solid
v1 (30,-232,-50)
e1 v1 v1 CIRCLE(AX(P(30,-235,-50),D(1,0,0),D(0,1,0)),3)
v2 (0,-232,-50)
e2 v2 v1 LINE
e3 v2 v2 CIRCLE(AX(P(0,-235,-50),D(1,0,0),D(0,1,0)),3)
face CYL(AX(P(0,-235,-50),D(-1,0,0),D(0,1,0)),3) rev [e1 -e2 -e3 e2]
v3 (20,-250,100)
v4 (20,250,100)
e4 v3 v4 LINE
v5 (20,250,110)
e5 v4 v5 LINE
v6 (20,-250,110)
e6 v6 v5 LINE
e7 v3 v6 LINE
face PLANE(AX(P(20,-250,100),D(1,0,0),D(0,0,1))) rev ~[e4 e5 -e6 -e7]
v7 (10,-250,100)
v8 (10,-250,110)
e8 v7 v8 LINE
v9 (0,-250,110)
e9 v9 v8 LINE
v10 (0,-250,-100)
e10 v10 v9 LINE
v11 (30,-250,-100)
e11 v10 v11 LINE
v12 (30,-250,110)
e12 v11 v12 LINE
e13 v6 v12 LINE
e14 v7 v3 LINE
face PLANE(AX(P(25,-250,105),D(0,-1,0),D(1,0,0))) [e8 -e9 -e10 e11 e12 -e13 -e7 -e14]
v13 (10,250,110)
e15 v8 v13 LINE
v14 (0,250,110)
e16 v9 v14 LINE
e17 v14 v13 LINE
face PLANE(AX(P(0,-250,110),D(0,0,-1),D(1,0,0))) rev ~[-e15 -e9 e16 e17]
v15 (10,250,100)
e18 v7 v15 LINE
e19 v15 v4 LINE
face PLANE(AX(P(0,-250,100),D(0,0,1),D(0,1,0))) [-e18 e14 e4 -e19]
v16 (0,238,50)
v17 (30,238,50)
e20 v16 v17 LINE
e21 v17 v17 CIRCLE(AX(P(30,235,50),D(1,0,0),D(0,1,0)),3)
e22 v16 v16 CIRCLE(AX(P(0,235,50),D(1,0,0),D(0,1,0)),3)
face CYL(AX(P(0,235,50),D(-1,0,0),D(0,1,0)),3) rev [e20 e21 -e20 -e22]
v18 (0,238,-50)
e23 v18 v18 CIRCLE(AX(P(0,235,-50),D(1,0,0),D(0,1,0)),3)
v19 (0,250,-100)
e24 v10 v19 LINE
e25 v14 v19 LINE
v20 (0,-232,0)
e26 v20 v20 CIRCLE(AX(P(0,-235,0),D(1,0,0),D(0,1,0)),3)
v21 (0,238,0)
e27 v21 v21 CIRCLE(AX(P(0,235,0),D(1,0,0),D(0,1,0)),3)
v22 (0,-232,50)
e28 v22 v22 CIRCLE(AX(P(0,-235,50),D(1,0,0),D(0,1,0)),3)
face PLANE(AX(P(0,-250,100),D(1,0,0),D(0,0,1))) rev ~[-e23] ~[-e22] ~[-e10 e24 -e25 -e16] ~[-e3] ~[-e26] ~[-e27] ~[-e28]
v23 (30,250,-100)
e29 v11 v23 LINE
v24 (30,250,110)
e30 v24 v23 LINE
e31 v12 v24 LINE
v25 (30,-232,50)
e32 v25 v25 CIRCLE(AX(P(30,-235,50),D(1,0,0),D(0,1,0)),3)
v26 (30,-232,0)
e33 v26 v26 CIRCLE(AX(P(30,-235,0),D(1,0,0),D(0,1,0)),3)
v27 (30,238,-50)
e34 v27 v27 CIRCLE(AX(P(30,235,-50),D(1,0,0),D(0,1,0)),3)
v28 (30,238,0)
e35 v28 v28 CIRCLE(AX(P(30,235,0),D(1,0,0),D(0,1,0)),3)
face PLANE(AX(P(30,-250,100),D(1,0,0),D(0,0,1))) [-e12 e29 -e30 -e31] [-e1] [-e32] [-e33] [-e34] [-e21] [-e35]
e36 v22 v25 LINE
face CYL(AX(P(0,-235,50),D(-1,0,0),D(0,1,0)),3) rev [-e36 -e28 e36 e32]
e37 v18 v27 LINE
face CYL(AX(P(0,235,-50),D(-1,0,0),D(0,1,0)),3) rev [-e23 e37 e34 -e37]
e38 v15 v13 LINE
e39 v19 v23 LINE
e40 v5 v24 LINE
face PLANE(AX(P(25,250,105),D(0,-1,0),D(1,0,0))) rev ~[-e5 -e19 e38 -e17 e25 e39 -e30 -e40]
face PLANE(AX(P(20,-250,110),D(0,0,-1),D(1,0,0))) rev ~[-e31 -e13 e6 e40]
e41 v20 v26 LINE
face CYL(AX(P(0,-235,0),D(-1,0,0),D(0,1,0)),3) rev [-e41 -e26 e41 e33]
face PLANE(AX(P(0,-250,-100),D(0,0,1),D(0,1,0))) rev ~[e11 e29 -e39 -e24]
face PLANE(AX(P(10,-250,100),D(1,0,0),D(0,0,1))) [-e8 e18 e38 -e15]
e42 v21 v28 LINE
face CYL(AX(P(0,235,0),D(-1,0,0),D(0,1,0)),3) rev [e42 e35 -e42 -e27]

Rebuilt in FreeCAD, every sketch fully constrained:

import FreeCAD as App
import Part
import Sketcher
Q = App.Units.Quantity

doc = App.newDocument("Part")
body = doc.addObject("PartDesign::Body", "Body")

sketch1 = body.newObject("Sketcher::SketchObject", "Sketch")
sketch1.AttachmentSupport = (doc.getObject("YZ_Plane"), [""])
sketch1.MapMode = "FlatFace"
sketch1.addGeometry([
    Part.LineSegment(App.Vector(-250, 100, 0), App.Vector(-250, -100, 0)),
    Part.LineSegment(App.Vector(-250, -100, 0), App.Vector(250, -100, 0)),
    Part.LineSegment(App.Vector(250, -100, 0), App.Vector(250, 100, 0)),
    Part.LineSegment(App.Vector(250, 100, 0), App.Vector(-250, 100, 0)),
    Part.Circle(App.Vector(-235, -50, 0), App.Vector(0, 0, 1), 3),
    Part.Circle(App.Vector(235, -50, 0), App.Vector(0, 0, 1), 3),
    Part.Circle(App.Vector(-235, 0, 0), App.Vector(0, 0, 1), 3),
    Part.Circle(App.Vector(-235, 50, 0), App.Vector(0, 0, 1), 3),
    Part.Circle(App.Vector(235, 0, 0), App.Vector(0, 0, 1), 3),
    Part.Circle(App.Vector(235, 50, 0), App.Vector(0, 0, 1), 3),
], False)
sketch1.addConstraint([
    Sketcher.Constraint("Coincident", 0, 2, 1, 1),
    Sketcher.Constraint("Coincident", 1, 2, 2, 1),
    Sketcher.Constraint("Coincident", 2, 2, 3, 1),
    Sketcher.Constraint("Coincident", 3, 2, 0, 1),
    Sketcher.Constraint("Vertical", 0),
    Sketcher.Constraint("Horizontal", 1),
    Sketcher.Constraint("Vertical", 2),
    Sketcher.Constraint("Horizontal", 3),
    Sketcher.Constraint("Equal", 4, 5),
    Sketcher.Constraint("Equal", 5, 6),
    Sketcher.Constraint("Equal", 6, 7),
    Sketcher.Constraint("Equal", 7, 8),
    Sketcher.Constraint("Equal", 8, 9),
    Sketcher.Constraint("Symmetric", 5, 3, 7, 3, -1, 1),
    Sketcher.Constraint("Symmetric", 6, 3, 8, 3, -1, 1),
    Sketcher.Constraint("Symmetric", 4, 3, 9, 3, -1, 1),
    Sketcher.Constraint("Symmetric", 0, 2, 2, 2, -1, 1),
    Sketcher.Constraint("Symmetric", 4, 3, 5, 3, -2),
    Sketcher.Constraint("PointOnObject", 6, 3, -1),
    Sketcher.Constraint("Vertical", 4, 3, 6, 3),
    Sketcher.Constraint("Diameter", 4, Q("6 mm")),
    Sketcher.Constraint("DistanceX", 1, 1, 1, 2, Q("500 mm")),
    Sketcher.Constraint("DistanceY", 0, 2, 0, 1, Q("200 mm")),
    Sketcher.Constraint("DistanceX", 4, 3, -1, 1, Q("235 mm")),
    Sketcher.Constraint("DistanceY", 4, 3, -1, 1, Q("50 mm")),
])
pad1 = body.newObject("PartDesign::Pad", "Pad")
pad1.Profile = sketch1
pad1.Length = 30

sketch2 = body.newObject("Sketcher::SketchObject", "Sketch001")
sketch2.AttachmentSupport = (doc.getObject("XZ_Plane"), [""])
sketch2.MapMode = "FlatFace"
sketch2.AttachmentOffset = App.Placement(App.Vector(0, 0, 250), App.Rotation())
sketch2.addGeometry([
    Part.LineSegment(App.Vector(0, 110, 0), App.Vector(0, 100, 0)),
    Part.LineSegment(App.Vector(0, 100, 0), App.Vector(10, 100, 0)),
    Part.LineSegment(App.Vector(10, 100, 0), App.Vector(10, 110, 0)),
    Part.LineSegment(App.Vector(10, 110, 0), App.Vector(0, 110, 0)),
], False)
sketch2.addConstraint([
    Sketcher.Constraint("Coincident", 0, 2, 1, 1),
    Sketcher.Constraint("Coincident", 1, 2, 2, 1),
    Sketcher.Constraint("Coincident", 2, 2, 3, 1),
    Sketcher.Constraint("Coincident", 3, 2, 0, 1),
    Sketcher.Constraint("Vertical", 0),
    Sketcher.Constraint("Horizontal", 1),
    Sketcher.Constraint("Vertical", 2),
    Sketcher.Constraint("Horizontal", 3),
    Sketcher.Constraint("PointOnObject", 0, 2, -2),
    Sketcher.Constraint("Equal", 3, 0),
    Sketcher.Constraint("DistanceX", 1, 1, 1, 2, Q("10 mm")),
    Sketcher.Constraint("DistanceY", -1, 1, 0, 2, Q("100 mm")),
])
pad2 = body.newObject("PartDesign::Pad", "Pad001")
pad2.Profile = sketch2
pad2.Length = 500
pad2.Reversed = True

sketch3 = body.newObject("Sketcher::SketchObject", "Sketch002")
sketch3.AttachmentSupport = (doc.getObject("XZ_Plane"), [""])
sketch3.MapMode = "FlatFace"
sketch3.AttachmentOffset = App.Placement(App.Vector(0, 0, 250), App.Rotation())
sketch3.addGeometry([
    Part.LineSegment(App.Vector(20, 110, 0), App.Vector(20, 100, 0)),
    Part.LineSegment(App.Vector(20, 100, 0), App.Vector(30, 100, 0)),
    Part.LineSegment(App.Vector(30, 100, 0), App.Vector(30, 110, 0)),
    Part.LineSegment(App.Vector(30, 110, 0), App.Vector(20, 110, 0)),
], False)
sketch3.addConstraint([
    Sketcher.Constraint("Coincident", 0, 2, 1, 1),
    Sketcher.Constraint("Coincident", 1, 2, 2, 1),
    Sketcher.Constraint("Coincident", 2, 2, 3, 1),
    Sketcher.Constraint("Coincident", 3, 2, 0, 1),
    Sketcher.Constraint("Vertical", 0),
    Sketcher.Constraint("Horizontal", 1),
    Sketcher.Constraint("Vertical", 2),
    Sketcher.Constraint("Horizontal", 3),
    Sketcher.Constraint("Equal", 3, 0),
    Sketcher.Constraint("DistanceX", 1, 1, 1, 2, Q("10 mm")),
    Sketcher.Constraint("DistanceX", -1, 1, 0, 2, Q("20 mm")),
    Sketcher.Constraint("DistanceY", -1, 1, 0, 2, Q("100 mm")),
])
pad3 = body.newObject("PartDesign::Pad", "Pad002")
pad3.Profile = sketch3
pad3.Length = 500
pad3.Reversed = True

doc.recompute()
